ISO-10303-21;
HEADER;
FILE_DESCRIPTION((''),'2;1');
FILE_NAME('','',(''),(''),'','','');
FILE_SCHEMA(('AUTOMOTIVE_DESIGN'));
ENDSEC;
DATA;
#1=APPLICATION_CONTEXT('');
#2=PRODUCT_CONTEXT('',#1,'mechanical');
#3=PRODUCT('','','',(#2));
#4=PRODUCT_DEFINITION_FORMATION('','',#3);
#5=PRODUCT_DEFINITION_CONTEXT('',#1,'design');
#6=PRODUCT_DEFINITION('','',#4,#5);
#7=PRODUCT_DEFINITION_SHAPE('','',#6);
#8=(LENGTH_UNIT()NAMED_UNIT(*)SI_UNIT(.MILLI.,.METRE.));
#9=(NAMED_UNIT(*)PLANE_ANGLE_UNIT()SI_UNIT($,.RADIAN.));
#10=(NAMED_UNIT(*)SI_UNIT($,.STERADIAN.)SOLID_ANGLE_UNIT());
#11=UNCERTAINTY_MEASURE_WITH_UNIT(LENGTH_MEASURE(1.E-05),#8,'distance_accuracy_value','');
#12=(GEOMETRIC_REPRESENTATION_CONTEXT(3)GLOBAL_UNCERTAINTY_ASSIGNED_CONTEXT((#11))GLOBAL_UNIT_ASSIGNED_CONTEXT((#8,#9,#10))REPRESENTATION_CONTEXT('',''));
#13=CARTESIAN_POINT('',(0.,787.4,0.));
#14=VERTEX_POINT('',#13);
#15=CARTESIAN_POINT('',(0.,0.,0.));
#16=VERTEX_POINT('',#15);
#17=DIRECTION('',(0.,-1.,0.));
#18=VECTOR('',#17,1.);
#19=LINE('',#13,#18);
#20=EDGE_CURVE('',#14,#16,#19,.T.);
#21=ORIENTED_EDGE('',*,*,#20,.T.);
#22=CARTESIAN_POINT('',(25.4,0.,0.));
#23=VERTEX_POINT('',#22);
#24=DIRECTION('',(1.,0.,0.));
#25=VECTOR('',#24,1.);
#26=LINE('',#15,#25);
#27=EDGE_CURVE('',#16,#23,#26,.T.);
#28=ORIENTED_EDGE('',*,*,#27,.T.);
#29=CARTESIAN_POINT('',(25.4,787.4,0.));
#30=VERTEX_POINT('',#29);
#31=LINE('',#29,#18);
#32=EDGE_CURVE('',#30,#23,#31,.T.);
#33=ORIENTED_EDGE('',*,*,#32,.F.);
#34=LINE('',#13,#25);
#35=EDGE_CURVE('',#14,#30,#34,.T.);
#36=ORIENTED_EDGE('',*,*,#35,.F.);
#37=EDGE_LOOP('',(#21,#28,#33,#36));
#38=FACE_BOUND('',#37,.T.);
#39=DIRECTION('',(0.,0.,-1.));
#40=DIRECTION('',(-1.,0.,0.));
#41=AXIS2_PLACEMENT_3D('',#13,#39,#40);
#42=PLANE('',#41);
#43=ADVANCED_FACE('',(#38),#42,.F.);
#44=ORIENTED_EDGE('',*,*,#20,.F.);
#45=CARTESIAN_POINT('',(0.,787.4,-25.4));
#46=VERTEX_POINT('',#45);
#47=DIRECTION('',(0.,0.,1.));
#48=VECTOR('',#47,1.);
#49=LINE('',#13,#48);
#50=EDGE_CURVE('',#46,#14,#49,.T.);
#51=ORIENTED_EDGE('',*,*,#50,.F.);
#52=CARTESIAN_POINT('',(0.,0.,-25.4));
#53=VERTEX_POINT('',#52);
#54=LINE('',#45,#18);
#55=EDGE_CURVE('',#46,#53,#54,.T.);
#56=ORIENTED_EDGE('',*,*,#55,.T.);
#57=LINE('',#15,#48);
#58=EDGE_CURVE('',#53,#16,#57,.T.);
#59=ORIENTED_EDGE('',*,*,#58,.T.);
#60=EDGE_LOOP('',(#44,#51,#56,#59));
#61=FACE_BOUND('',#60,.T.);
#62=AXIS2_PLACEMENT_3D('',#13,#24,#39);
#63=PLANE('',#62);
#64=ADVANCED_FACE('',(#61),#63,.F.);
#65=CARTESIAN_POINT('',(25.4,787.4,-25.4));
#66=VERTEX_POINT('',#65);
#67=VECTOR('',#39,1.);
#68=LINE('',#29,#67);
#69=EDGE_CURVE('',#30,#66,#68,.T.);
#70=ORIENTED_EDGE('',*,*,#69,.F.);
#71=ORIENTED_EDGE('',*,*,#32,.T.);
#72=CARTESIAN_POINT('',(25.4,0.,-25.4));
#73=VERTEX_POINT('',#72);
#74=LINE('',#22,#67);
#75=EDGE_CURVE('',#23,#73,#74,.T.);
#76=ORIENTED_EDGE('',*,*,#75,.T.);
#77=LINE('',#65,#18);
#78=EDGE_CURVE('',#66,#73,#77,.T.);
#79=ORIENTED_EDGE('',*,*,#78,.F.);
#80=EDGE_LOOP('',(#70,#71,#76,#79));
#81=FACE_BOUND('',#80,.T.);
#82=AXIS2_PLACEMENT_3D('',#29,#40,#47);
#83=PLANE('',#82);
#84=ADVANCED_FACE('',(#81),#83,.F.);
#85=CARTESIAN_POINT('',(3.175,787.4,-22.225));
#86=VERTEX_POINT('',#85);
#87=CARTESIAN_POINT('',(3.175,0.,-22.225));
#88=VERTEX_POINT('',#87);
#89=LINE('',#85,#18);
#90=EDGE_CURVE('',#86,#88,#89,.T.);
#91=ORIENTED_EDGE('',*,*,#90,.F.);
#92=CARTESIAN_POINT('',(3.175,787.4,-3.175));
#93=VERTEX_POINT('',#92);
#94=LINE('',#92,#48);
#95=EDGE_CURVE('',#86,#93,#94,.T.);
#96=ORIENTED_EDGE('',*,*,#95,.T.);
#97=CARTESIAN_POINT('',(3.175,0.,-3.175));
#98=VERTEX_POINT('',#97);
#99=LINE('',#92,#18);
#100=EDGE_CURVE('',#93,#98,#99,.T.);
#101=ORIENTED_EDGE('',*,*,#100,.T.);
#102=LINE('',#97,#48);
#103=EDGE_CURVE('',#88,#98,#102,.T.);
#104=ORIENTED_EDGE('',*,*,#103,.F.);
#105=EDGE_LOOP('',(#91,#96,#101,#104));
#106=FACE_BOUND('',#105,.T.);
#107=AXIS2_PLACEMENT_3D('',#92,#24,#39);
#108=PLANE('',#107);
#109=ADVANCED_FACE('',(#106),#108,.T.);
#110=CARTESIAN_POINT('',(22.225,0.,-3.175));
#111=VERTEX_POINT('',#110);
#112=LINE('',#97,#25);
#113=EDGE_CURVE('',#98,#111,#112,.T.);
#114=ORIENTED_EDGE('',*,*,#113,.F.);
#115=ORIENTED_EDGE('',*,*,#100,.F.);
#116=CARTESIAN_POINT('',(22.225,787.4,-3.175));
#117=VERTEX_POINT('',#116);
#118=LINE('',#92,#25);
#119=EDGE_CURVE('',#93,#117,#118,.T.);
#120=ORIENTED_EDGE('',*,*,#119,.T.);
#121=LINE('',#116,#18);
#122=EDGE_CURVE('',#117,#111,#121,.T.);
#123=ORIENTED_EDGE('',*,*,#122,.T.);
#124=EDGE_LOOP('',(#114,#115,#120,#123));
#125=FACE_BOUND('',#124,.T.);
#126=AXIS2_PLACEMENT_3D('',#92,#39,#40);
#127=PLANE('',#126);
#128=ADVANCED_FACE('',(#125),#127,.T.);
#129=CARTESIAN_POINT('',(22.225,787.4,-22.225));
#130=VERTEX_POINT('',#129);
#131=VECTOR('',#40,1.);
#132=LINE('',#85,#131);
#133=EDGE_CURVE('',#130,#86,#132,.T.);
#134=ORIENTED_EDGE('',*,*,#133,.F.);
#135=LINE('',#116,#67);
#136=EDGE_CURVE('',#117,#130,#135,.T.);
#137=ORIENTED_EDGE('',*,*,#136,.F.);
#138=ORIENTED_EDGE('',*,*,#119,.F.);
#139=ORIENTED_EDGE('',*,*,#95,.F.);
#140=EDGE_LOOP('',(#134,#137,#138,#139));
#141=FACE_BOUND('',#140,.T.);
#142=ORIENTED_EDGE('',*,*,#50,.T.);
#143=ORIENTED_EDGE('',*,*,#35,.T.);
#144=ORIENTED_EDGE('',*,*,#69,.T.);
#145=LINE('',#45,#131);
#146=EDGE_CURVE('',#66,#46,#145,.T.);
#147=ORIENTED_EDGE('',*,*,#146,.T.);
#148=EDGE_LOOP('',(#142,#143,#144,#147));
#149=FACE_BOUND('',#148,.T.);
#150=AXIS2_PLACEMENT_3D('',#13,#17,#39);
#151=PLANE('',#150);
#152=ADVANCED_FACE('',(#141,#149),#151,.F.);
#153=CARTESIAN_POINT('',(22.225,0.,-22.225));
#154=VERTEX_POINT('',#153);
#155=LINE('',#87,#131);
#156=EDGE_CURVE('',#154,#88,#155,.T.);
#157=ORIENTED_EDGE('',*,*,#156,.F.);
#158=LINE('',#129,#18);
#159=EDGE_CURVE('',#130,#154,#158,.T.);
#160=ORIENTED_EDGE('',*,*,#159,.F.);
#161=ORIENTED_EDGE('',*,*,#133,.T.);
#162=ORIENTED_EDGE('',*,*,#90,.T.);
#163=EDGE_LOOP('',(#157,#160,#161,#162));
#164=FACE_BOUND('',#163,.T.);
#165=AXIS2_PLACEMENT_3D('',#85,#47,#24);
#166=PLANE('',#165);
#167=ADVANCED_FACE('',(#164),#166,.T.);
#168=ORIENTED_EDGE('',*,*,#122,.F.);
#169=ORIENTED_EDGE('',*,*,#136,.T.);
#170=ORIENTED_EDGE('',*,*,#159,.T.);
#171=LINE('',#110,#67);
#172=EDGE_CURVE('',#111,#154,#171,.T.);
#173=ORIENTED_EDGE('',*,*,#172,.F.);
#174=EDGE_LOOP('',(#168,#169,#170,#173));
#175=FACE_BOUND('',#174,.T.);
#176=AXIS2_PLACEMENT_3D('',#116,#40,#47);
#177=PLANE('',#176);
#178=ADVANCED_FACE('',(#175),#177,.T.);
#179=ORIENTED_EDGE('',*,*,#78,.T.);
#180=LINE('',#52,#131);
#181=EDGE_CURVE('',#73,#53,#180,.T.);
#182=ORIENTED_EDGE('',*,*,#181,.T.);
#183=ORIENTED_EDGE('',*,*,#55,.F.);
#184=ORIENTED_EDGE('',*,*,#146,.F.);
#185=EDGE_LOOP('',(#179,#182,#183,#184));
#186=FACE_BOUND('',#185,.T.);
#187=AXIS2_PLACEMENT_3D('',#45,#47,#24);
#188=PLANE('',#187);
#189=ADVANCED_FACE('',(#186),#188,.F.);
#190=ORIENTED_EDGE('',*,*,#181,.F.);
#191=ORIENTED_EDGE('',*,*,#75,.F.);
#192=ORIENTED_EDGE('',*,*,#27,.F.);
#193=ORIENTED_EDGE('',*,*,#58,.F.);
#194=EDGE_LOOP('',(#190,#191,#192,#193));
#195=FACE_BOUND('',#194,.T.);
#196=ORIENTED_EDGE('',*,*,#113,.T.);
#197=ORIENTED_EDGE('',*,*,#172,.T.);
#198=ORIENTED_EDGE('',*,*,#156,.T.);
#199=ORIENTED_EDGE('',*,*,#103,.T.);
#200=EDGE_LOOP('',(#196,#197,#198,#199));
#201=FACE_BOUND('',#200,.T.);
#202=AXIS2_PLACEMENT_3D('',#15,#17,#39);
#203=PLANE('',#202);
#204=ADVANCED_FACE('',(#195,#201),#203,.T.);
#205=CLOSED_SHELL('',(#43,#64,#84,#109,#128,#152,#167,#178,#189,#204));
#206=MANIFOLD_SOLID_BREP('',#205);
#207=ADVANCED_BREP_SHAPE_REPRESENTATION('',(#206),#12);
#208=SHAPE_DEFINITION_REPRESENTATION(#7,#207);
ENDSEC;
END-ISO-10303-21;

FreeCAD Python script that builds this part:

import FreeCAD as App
import Part
import Sketcher
Q = App.Units.Quantity


def add_polygon(sketch, points):
    """Adds a closed chain of lines whose ends are joined by coincident constraints."""
    first, n = sketch.GeometryCount, len(points)
    for a, b in zip(points, points[1:] + points[:1]):
        sketch.addGeometry(Part.LineSegment(App.Vector(*a, 0), App.Vector(*b, 0)), False)
    for i in range(n):
        sketch.addConstraint(Sketcher.Constraint("Coincident", first + i, 2, first + (i + 1) % n, 1))

doc = App.newDocument("Part")
params = doc.addObject("Spreadsheet::Sheet", "Params")
for row, (alias, value) in enumerate([
    ("sketch1_width", "1 in"),
    ("sketch1_width2", "0.75 in"),
    ("pad1_length", "31 in"),
], start=1):
    params.set(f"A{row}", alias)
    params.set(f"B{row}", "=" + value)
    params.setAlias(f"B{row}", alias)

body = doc.addObject("PartDesign::Body", "Body")

sketch1 = body.newObject("Sketcher::SketchObject", "Sketch")
sketch1.AttachmentSupport = (doc.getObject("XZ_Plane"), [""])
sketch1.MapMode = "FlatFace"
add_polygon(sketch1, [(0, -25), (0, 0), (25, 0), (25, -25)])
add_polygon(sketch1, [(22, -3), (3, -3), (3, -22), (22, -22)])
sketch1.addConstraint([
    Sketcher.Constraint("Vertical", 0),
    Sketcher.Constraint("Horizontal", 1),
    Sketcher.Constraint("Vertical", 2),
    Sketcher.Constraint("Horizontal", 3),
    Sketcher.Constraint("Horizontal", 4),
    Sketcher.Constraint("Vertical", 5),
    Sketcher.Constraint("Horizontal", 6),
    Sketcher.Constraint("Vertical", 7),
    Sketcher.Constraint("Coincident", 0, 2, -1, 1),
    Sketcher.Constraint("Equal", 3, 0),
    Sketcher.Constraint("Equal", 6, 5),
    Sketcher.Constraint("DistanceX", 1, 1, 1, 2, Q("1 in")),
    Sketcher.Constraint("DistanceX", 4, 2, 4, 1, Q("0.75 in")),
    Sketcher.Constraint("DistanceX", -1, 1, 4, 2, Q("0.125 in")),
    Sketcher.Constraint("DistanceY", 4, 2, -1, 1, Q("0.125 in")),
])
sketch1.setExpression("Constraints[19]", "Params.sketch1_width")
sketch1.setExpression("Constraints[20]", "Params.sketch1_width2")
pad1 = body.newObject("PartDesign::Pad", "Pad")
pad1.Profile = sketch1
pad1.setExpression("Length", "Params.pad1_length")
pad1.Reversed = True

doc.recompute()
